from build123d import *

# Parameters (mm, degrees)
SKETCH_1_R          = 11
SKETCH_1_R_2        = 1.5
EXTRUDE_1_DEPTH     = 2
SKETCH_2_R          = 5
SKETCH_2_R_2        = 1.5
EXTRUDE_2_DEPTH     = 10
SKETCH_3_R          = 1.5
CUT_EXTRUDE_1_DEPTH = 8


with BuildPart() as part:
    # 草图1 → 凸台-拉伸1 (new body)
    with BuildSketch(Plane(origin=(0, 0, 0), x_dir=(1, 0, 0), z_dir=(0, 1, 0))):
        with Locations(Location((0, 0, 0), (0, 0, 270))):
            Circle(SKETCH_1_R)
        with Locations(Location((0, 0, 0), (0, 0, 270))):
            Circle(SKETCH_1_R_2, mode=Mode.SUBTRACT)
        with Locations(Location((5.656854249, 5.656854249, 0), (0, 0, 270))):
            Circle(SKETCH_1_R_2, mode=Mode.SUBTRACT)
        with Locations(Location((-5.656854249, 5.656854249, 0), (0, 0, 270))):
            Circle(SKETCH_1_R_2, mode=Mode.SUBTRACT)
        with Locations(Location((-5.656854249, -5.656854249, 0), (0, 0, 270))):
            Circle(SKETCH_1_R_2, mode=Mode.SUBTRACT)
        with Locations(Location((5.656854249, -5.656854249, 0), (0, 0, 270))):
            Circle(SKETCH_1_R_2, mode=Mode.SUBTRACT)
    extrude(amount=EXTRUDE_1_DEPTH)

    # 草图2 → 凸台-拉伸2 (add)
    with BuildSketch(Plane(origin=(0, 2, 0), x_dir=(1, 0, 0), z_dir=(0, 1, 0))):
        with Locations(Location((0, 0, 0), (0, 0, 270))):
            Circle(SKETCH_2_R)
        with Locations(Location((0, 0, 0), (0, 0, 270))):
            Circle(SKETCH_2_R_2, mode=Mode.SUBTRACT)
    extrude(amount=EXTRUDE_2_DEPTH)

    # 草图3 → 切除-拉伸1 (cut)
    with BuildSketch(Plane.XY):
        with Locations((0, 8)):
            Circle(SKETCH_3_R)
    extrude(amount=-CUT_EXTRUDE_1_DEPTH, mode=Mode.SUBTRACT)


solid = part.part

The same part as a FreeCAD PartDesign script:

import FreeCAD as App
import Part
import Sketcher
Q = App.Units.Quantity

doc = App.newDocument("Part")
body = doc.addObject("PartDesign::Body", "Body")

sketch1 = body.newObject("Sketcher::SketchObject", "Sketch")
sketch1.AttachmentSupport = (doc.getObject("XZ_Plane"), [""])
sketch1.MapMode = "FlatFace"
sketch1.addGeometry([
    Part.Circle(App.Vector(0, 0, 0), App.Vector(0, 0, 1), 11),
    Part.Circle(App.Vector(-5.7, -5.7, 0), App.Vector(0, 0, 1), 1.5),
    Part.Circle(App.Vector(-5.7, 5.7, 0), App.Vector(0, 0, 1), 1.5),
    Part.Circle(App.Vector(0, 0, 0), App.Vector(0, 0, 1), 1.5),
    Part.Circle(App.Vector(5.7, -5.7, 0), App.Vector(0, 0, 1), 1.5),
    Part.Circle(App.Vector(5.7, 5.7, 0), App.Vector(0, 0, 1), 1.5),
], False)
sketch1.addConstraint([
    Sketcher.Constraint("Coincident", 0, 3, -1, 1),
    Sketcher.Constraint("Coincident", 3, 3, -1, 1),
    Sketcher.Constraint("Equal", 1, 2),
    Sketcher.Constraint("Equal", 2, 3),
    Sketcher.Constraint("Equal", 3, 4),
    Sketcher.Constraint("Equal", 4, 5),
    Sketcher.Constraint("Symmetric", 2, 3, 4, 3, -1, 1),
    Sketcher.Constraint("Symmetric", 1, 3, 5, 3, -1, 1),
    Sketcher.Constraint("Symmetric", 1, 3, 4, 3, -2),
    Sketcher.Constraint("Diameter", 0, Q("22 mm")),
    Sketcher.Constraint("Diameter", 1, Q("3 mm")),
    Sketcher.Constraint("DistanceY", 1, 3, 2, 3, Q("11.313708 mm")),
    Sketcher.Constraint("DistanceX", 1, 3, 4, 3, Q("11.313708 mm")),
])
pad1 = body.newObject("PartDesign::Pad", "Pad")
pad1.Profile = sketch1
pad1.Length = 2
pad1.Reversed = True

sketch2 = body.newObject("Sketcher::SketchObject", "Sketch001")
sketch2.AttachmentSupport = (doc.getObject("XZ_Plane"), [""])
sketch2.MapMode = "FlatFace"
sketch2.AttachmentOffset = App.Placement(App.Vector(0, 0, -2), App.Rotation())
sketch2.addGeometry([
    Part.Circle(App.Vector(0, 0, 0), App.Vector(0, 0, 1), 5),
    Part.Circle(App.Vector(0, 0, 0), App.Vector(0, 0, 1), 1.5),
], False)
sketch2.addConstraint([
    Sketcher.Constraint("Coincident", 0, 3, -1, 1),
    Sketcher.Constraint("Coincident", 1, 3, -1, 1),
    Sketcher.Constraint("Diameter", 0, Q("10 mm")),
    Sketcher.Constraint("Diameter", 1, Q("3 mm")),
])
pad2 = body.newObject("PartDesign::Pad", "Pad001")
pad2.Profile = sketch2
pad2.Length = 10
pad2.Reversed = True

sketch3 = body.newObject("Sketcher::SketchObject", "Sketch002")
sketch3.AttachmentSupport = (doc.getObject("XY_Plane"), [""])
sketch3.MapMode = "FlatFace"
sketch3.addGeometry(Part.Circle(App.Vector(0, 8, 0), App.Vector(0, 0, 1), 1.5), False)
sketch3.addConstraint([
    Sketcher.Constraint("PointOnObject", 0, 3, -2),
    Sketcher.Constraint("Diameter", 0, Q("3 mm")),
    Sketcher.Constraint("DistanceY", -1, 1, 0, 3, Q("8 mm")),
])
pocket1 = body.newObject("PartDesign::Pocket", "Pocket")
pocket1.Profile = sketch3
pocket1.Length = 8

doc.recompute()
